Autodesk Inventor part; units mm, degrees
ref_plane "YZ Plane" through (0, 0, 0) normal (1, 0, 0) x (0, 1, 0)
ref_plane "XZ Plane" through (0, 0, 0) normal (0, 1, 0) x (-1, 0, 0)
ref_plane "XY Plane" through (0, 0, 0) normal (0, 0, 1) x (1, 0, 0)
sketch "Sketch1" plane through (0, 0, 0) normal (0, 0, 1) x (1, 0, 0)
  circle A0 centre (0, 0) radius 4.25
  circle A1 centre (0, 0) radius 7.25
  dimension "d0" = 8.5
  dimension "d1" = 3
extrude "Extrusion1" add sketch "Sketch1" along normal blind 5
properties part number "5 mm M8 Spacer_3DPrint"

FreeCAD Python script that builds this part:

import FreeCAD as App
import Part
import Sketcher

V = App.Vector
Q = App.Units.Quantity

doc = App.newDocument("Part")
params = doc.addObject("Spreadsheet::Sheet", "Params")
for row, (alias, value) in enumerate([
    ("sketch1_diameter", "8.5 mm"),
    ("sketch1_diameter2", "14.5 mm"),
    ("pad1_length", "5 mm"),
], start=1):
    params.set(f"A{row}", alias)
    params.set(f"B{row}", "=" + value)
    params.setAlias(f"B{row}", alias)

body = doc.addObject("PartDesign::Body", "Body")

# Sketch on XY plane
sketch1 = body.newObject("Sketcher::SketchObject", "Sketch")
sketch1.AttachmentSupport = (doc.getObject("XY_Plane"), [""])
sketch1.MapMode = "FlatFace"
sketch1.addGeometry(Part.Circle(V(0, 0, 0), V(0, 0, 1), 7.2), False)
sketch1.addGeometry(Part.Circle(V(0, 0, 0), V(0, 0, 1), 4.2), False)
sketch1.addConstraint(Sketcher.Constraint("Coincident", 0, 3, -1, 1))
sketch1.addConstraint(Sketcher.Constraint("Coincident", 1, 3, -1, 1))
sketch1.addConstraint(Sketcher.Constraint("Diameter", 1, Q("8.5 mm")))
sketch1.addConstraint(Sketcher.Constraint("Diameter", 0, Q("14.5 mm")))
sketch1.setExpression("Constraints[2]", "Params.sketch1_diameter")
sketch1.setExpression("Constraints[3]", "Params.sketch1_diameter2")
pad1 = body.newObject("PartDesign::Pad", "Pad")
pad1.Profile = sketch1
pad1.setExpression("Length", "Params.pad1_length")

doc.recompute()
